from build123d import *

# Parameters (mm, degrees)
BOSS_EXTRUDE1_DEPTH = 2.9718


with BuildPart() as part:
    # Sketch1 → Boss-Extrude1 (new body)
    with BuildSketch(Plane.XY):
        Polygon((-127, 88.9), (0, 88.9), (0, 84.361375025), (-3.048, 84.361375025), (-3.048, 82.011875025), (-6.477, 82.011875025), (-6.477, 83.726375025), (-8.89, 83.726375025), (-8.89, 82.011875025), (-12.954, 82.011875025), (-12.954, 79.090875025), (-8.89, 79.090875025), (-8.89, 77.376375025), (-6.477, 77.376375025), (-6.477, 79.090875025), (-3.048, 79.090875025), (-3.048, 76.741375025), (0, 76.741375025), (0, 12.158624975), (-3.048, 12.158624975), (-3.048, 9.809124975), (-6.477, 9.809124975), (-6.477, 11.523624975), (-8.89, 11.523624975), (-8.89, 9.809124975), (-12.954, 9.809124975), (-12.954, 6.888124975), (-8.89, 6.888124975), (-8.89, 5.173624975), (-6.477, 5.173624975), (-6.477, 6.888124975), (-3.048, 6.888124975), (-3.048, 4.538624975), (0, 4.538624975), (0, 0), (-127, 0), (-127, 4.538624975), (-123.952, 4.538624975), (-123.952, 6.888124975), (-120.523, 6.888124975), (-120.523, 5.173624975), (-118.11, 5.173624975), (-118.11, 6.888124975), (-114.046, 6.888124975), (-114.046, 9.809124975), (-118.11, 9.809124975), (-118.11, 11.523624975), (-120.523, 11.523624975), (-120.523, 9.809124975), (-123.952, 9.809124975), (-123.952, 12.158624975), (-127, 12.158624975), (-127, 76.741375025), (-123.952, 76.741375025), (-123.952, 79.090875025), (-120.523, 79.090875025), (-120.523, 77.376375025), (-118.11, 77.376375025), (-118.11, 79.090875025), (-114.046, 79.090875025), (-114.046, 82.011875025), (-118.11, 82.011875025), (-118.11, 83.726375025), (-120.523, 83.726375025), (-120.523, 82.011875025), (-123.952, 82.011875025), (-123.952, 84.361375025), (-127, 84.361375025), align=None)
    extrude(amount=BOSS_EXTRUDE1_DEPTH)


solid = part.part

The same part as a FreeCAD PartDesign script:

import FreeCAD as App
import Part
import Sketcher
from FreeCAD import Vector
Q = App.Units.Quantity

doc = App.newDocument("Part")
body = doc.addObject("PartDesign::Body", "Body")

# Sketch on XY plane
sketch1 = body.newObject("Sketcher::SketchObject", "Sketch")
sketch1.AttachmentSupport = (doc.getObject("XY_Plane"), [""])
sketch1.MapMode = "FlatFace"
sketch1.addGeometry([
    Part.LineSegment(Vector(0, 88.9, 0), Vector(-127, 88.9, 0)),  # 0
    Part.LineSegment(Vector(-127, 88.9, 0), Vector(-127, 84.361375, 0)),  # 1
    Part.LineSegment(Vector(-127, 84.361375, 0), Vector(-123.952, 84.361375, 0)),  # 2
    Part.LineSegment(Vector(-123.952, 84.361375, 0), Vector(-123.952, 82.011875, 0)),  # 3
    Part.LineSegment(Vector(-123.952, 82.011875, 0), Vector(-120.523, 82.011875, 0)),  # 4
    Part.LineSegment(Vector(-120.523, 82.011875, 0), Vector(-120.523, 83.726375, 0)),  # 5
    Part.LineSegment(Vector(-120.523, 83.726375, 0), Vector(-118.11, 83.726375, 0)),  # 6
    Part.LineSegment(Vector(-118.11, 83.726375, 0), Vector(-118.11, 82.011875, 0)),  # 7
    Part.LineSegment(Vector(-118.11, 82.011875, 0), Vector(-114.046, 82.011875, 0)),  # 8
    Part.LineSegment(Vector(-114.046, 82.011875, 0), Vector(-114.046, 79.090875, 0)),  # 9
    Part.LineSegment(Vector(-114.046, 79.090875, 0), Vector(-118.11, 79.090875, 0)),  # 10
    Part.LineSegment(Vector(-118.11, 79.090875, 0), Vector(-118.11, 77.376375, 0)),  # 11
    Part.LineSegment(Vector(-118.11, 77.376375, 0), Vector(-120.523, 77.376375, 0)),  # 12
    Part.LineSegment(Vector(-120.523, 77.376375, 0), Vector(-120.523, 79.090875, 0)),  # 13
    Part.LineSegment(Vector(-120.523, 79.090875, 0), Vector(-123.952, 79.090875, 0)),  # 14
    Part.LineSegment(Vector(-123.952, 79.090875, 0), Vector(-123.952, 76.741375, 0)),  # 15
    Part.LineSegment(Vector(-123.952, 76.741375, 0), Vector(-127, 76.741375, 0)),  # 16
    Part.LineSegment(Vector(-127, 76.741375, 0), Vector(-127, 12.158625, 0)),  # 17
    Part.LineSegment(Vector(-127, 12.158625, 0), Vector(-123.952, 12.158625, 0)),  # 18
    Part.LineSegment(Vector(-123.952, 12.158625, 0), Vector(-123.952, 9.809125, 0)),  # 19
    Part.LineSegment(Vector(-123.952, 9.809125, 0), Vector(-120.523, 9.809125, 0)),  # 20
    Part.LineSegment(Vector(-120.523, 9.809125, 0), Vector(-120.523, 11.523625, 0)),  # 21
    Part.LineSegment(Vector(-120.523, 11.523625, 0), Vector(-118.11, 11.523625, 0)),  # 22
    Part.LineSegment(Vector(-118.11, 11.523625, 0), Vector(-118.11, 9.809125, 0)),  # 23
    Part.LineSegment(Vector(-118.11, 9.809125, 0), Vector(-114.046, 9.809125, 0)),  # 24
    Part.LineSegment(Vector(-114.046, 9.809125, 0), Vector(-114.046, 6.888125, 0)),  # 25
    Part.LineSegment(Vector(-114.046, 6.888125, 0), Vector(-118.11, 6.888125, 0)),  # 26
    Part.LineSegment(Vector(-118.11, 6.888125, 0), Vector(-118.11, 5.173625, 0)),  # 27
    Part.LineSegment(Vector(-118.11, 5.173625, 0), Vector(-120.523, 5.173625, 0)),  # 28
    Part.LineSegment(Vector(-120.523, 5.173625, 0), Vector(-120.523, 6.888125, 0)),  # 29
    Part.LineSegment(Vector(-120.523, 6.888125, 0), Vector(-123.952, 6.888125, 0)),  # 30
    Part.LineSegment(Vector(-123.952, 6.888125, 0), Vector(-123.952, 4.538625, 0)),  # 31
    Part.LineSegment(Vector(-123.952, 4.538625, 0), Vector(-127, 4.538625, 0)),  # 32
    Part.LineSegment(Vector(-127, 4.538625, 0), Vector(-127, 0, 0)),  # 33
    Part.LineSegment(Vector(-127, 0, 0), Vector(0, 0, 0)),  # 34
    Part.LineSegment(Vector(0, 0, 0), Vector(0, 4.538625, 0)),  # 35
    Part.LineSegment(Vector(0, 4.538625, 0), Vector(-3.048, 4.538625, 0)),  # 36
    Part.LineSegment(Vector(-3.048, 4.538625, 0), Vector(-3.048, 6.888125, 0)),  # 37
    Part.LineSegment(Vector(-3.048, 6.888125, 0), Vector(-6.477, 6.888125, 0)),  # 38
    Part.LineSegment(Vector(-6.477, 6.888125, 0), Vector(-6.477, 5.173625, 0)),  # 39
    Part.LineSegment(Vector(-6.477, 5.173625, 0), Vector(-8.89, 5.173625, 0)),  # 40
    Part.LineSegment(Vector(-8.89, 5.173625, 0), Vector(-8.89, 6.888125, 0)),  # 41
    Part.LineSegment(Vector(-8.89, 6.888125, 0), Vector(-12.954, 6.888125, 0)),  # 42
    Part.LineSegment(Vector(-12.954, 6.888125, 0), Vector(-12.954, 9.809125, 0)),  # 43
    Part.LineSegment(Vector(-12.954, 9.809125, 0), Vector(-8.89, 9.809125, 0)),  # 44
    Part.LineSegment(Vector(-8.89, 9.809125, 0), Vector(-8.89, 11.523625, 0)),  # 45
    Part.LineSegment(Vector(-8.89, 11.523625, 0), Vector(-6.477, 11.523625, 0)),  # 46
    Part.LineSegment(Vector(-6.477, 11.523625, 0), Vector(-6.477, 9.809125, 0)),  # 47
    Part.LineSegment(Vector(-6.477, 9.809125, 0), Vector(-3.048, 9.809125, 0)),  # 48
    Part.LineSegment(Vector(-3.048, 9.809125, 0), Vector(-3.048, 12.158625, 0)),  # 49
    Part.LineSegment(Vector(-3.048, 12.158625, 0), Vector(0, 12.158625, 0)),  # 50
    Part.LineSegment(Vector(0, 12.158625, 0), Vector(0, 76.741375, 0)),  # 51
    Part.LineSegment(Vector(0, 76.741375, 0), Vector(-3.048, 76.741375, 0)),  # 52
    Part.LineSegment(Vector(-3.048, 76.741375, 0), Vector(-3.048, 79.090875, 0)),  # 53
    Part.LineSegment(Vector(-3.048, 79.090875, 0), Vector(-6.477, 79.090875, 0)),  # 54
    Part.LineSegment(Vector(-6.477, 79.090875, 0), Vector(-6.477, 77.376375, 0)),  # 55
    Part.LineSegment(Vector(-6.477, 77.376375, 0), Vector(-8.89, 77.376375, 0)),  # 56
    Part.LineSegment(Vector(-8.89, 77.376375, 0), Vector(-8.89, 79.090875, 0)),  # 57
    Part.LineSegment(Vector(-8.89, 79.090875, 0), Vector(-12.954, 79.090875, 0)),  # 58
    Part.LineSegment(Vector(-12.954, 79.090875, 0), Vector(-12.954, 82.011875, 0)),  # 59
    Part.LineSegment(Vector(-12.954, 82.011875, 0), Vector(-8.89, 82.011875, 0)),  # 60
    Part.LineSegment(Vector(-8.89, 82.011875, 0), Vector(-8.89, 83.726375, 0)),  # 61
    Part.LineSegment(Vector(-8.89, 83.726375, 0), Vector(-6.477, 83.726375, 0)),  # 62
    Part.LineSegment(Vector(-6.477, 83.726375, 0), Vector(-6.477, 82.011875, 0)),  # 63
    Part.LineSegment(Vector(-6.477, 82.011875, 0), Vector(-3.048, 82.011875, 0)),  # 64
    Part.LineSegment(Vector(-3.048, 82.011875, 0), Vector(-3.048, 84.361375, 0)),  # 65
    Part.LineSegment(Vector(-3.048, 84.361375, 0), Vector(0, 84.361375, 0)),  # 66
    Part.LineSegment(Vector(0, 84.361375, 0), Vector(0, 88.9, 0)),  # 67
], False)
sketch1.addConstraint([
    Sketcher.Constraint("Coincident", 0, 2, 1, 1),
    Sketcher.Constraint("Coincident", 1, 2, 2, 1),
    Sketcher.Constraint("Coincident", 2, 2, 3, 1),
    Sketcher.Constraint("Coincident", 3, 2, 4, 1),
    Sketcher.Constraint("Coincident", 4, 2, 5, 1),
    Sketcher.Constraint("Coincident", 5, 2, 6, 1),
    Sketcher.Constraint("Coincident", 6, 2, 7, 1),
    Sketcher.Constraint("Coincident", 7, 2, 8, 1),
    Sketcher.Constraint("Coincident", 8, 2, 9, 1),
    Sketcher.Constraint("Coincident", 9, 2, 10, 1),
    Sketcher.Constraint("Coincident", 10, 2, 11, 1),
    Sketcher.Constraint("Coincident", 11, 2, 12, 1),
    Sketcher.Constraint("Coincident", 12, 2, 13, 1),
    Sketcher.Constraint("Coincident", 13, 2, 14, 1),
    Sketcher.Constraint("Coincident", 14, 2, 15, 1),
    Sketcher.Constraint("Coincident", 15, 2, 16, 1),
    Sketcher.Constraint("Coincident", 16, 2, 17, 1),
    Sketcher.Constraint("Coincident", 17, 2, 18, 1),
    Sketcher.Constraint("Coincident", 18, 2, 19, 1),
    Sketcher.Constraint("Coincident", 19, 2, 20, 1),
    Sketcher.Constraint("Coincident", 20, 2, 21, 1),
    Sketcher.Constraint("Coincident", 21, 2, 22, 1),
    Sketcher.Constraint("Coincident", 22, 2, 23, 1),
    Sketcher.Constraint("Coincident", 23, 2, 24, 1),
    Sketcher.Constraint("Coincident", 24, 2, 25, 1),
    Sketcher.Constraint("Coincident", 25, 2, 26, 1),
    Sketcher.Constraint("Coincident", 26, 2, 27, 1),
    Sketcher.Constraint("Coincident", 27, 2, 28, 1),
    Sketcher.Constraint("Coincident", 28, 2, 29, 1),
    Sketcher.Constraint("Coincident", 29, 2, 30, 1),
    Sketcher.Constraint("Coincident", 30, 2, 31, 1),
    Sketcher.Constraint("Coincident", 31, 2, 32, 1),
    Sketcher.Constraint("Coincident", 32, 2, 33, 1),
    Sketcher.Constraint("Coincident", 33, 2, 34, 1),
    Sketcher.Constraint("Coincident", 34, 2, 35, 1),
    Sketcher.Constraint("Coincident", 35, 2, 36, 1),
    Sketcher.Constraint("Coincident", 36, 2, 37, 1),
    Sketcher.Constraint("Coincident", 37, 2, 38, 1),
    Sketcher.Constraint("Coincident", 38, 2, 39, 1),
    Sketcher.Constraint("Coincident", 39, 2, 40, 1),
    Sketcher.Constraint("Coincident", 40, 2, 41, 1),
    Sketcher.Constraint("Coincident", 41, 2, 42, 1),
    Sketcher.Constraint("Coincident", 42, 2, 43, 1),
    Sketcher.Constraint("Coincident", 43, 2, 44, 1),
    Sketcher.Constraint("Coincident", 44, 2, 45, 1),
    Sketcher.Constraint("Coincident", 45, 2, 46, 1),
    Sketcher.Constraint("Coincident", 46, 2, 47, 1),
    Sketcher.Constraint("Coincident", 47, 2, 48, 1),
    Sketcher.Constraint("Coincident", 48, 2, 49, 1),
    Sketcher.Constraint("Coincident", 49, 2, 50, 1),
    Sketcher.Constraint("Coincident", 50, 2, 51, 1),
    Sketcher.Constraint("Coincident", 51, 2, 52, 1),
    Sketcher.Constraint("Coincident", 52, 2, 53, 1),
    Sketcher.Constraint("Coincident", 53, 2, 54, 1),
    Sketcher.Constraint("Coincident", 54, 2, 55, 1),
    Sketcher.Constraint("Coincident", 55, 2, 56, 1),
    Sketcher.Constraint("Coincident", 56, 2, 57, 1),
    Sketcher.Constraint("Coincident", 57, 2, 58, 1),
    Sketcher.Constraint("Coincident", 58, 2, 59, 1),
    Sketcher.Constraint("Coincident", 59, 2, 60, 1),
    Sketcher.Constraint("Coincident", 60, 2, 61, 1),
    Sketcher.Constraint("Coincident", 61, 2, 62, 1),
    Sketcher.Constraint("Coincident", 62, 2, 63, 1),
    Sketcher.Constraint("Coincident", 63, 2, 64, 1),
    Sketcher.Constraint("Coincident", 64, 2, 65, 1),
    Sketcher.Constraint("Coincident", 65, 2, 66, 1),
    Sketcher.Constraint("Coincident", 66, 2, 67, 1),
    Sketcher.Constraint("Coincident", 67, 2, 0, 1),
    Sketcher.Constraint("Horizontal", 0),
    Sketcher.Constraint("Vertical", 1),
    Sketcher.Constraint("Horizontal", 2),
    Sketcher.Constraint("Vertical", 3),
    Sketcher.Constraint("Horizontal", 4),
    Sketcher.Constraint("Vertical", 5),
    Sketcher.Constraint("Horizontal", 6),
    Sketcher.Constraint("Vertical", 7),
    Sketcher.Constraint("Horizontal", 8),
    Sketcher.Constraint("Vertical", 9),
    Sketcher.Constraint("Horizontal", 10),
    Sketcher.Constraint("Vertical", 11),
    Sketcher.Constraint("Horizontal", 12),
    Sketcher.Constraint("Vertical", 13),
    Sketcher.Constraint("Horizontal", 14),
    Sketcher.Constraint("Vertical", 15),
    Sketcher.Constraint("Horizontal", 16),
    Sketcher.Constraint("Vertical", 17),
    Sketcher.Constraint("Horizontal", 18),
    Sketcher.Constraint("Vertical", 19),
    Sketcher.Constraint("Horizontal", 20),
    Sketcher.Constraint("Vertical", 21),
    Sketcher.Constraint("Horizontal", 22),
    Sketcher.Constraint("Vertical", 23),
    Sketcher.Constraint("Horizontal", 24),
    Sketcher.Constraint("Vertical", 25),
    Sketcher.Constraint("Horizontal", 26),
    Sketcher.Constraint("Vertical", 27),
    Sketcher.Constraint("Horizontal", 28),
    Sketcher.Constraint("Vertical", 29),
    Sketcher.Constraint("Horizontal", 30),
    Sketcher.Constraint("Vertical", 31),
    Sketcher.Constraint("Horizontal", 32),
    Sketcher.Constraint("Vertical", 33),
    Sketcher.Constraint("Horizontal", 34),
    Sketcher.Constraint("Vertical", 35),
    Sketcher.Constraint("Horizontal", 36),
    Sketcher.Constraint("Vertical", 37),
    Sketcher.Constraint("Horizontal", 38),
    Sketcher.Constraint("Vertical", 39),
    Sketcher.Constraint("Horizontal", 40),
    Sketcher.Constraint("Vertical", 41),
    Sketcher.Constraint("Horizontal", 42),
    Sketcher.Constraint("Vertical", 43),
    Sketcher.Constraint("Horizontal", 44),
    Sketcher.Constraint("Vertical", 45),
    Sketcher.Constraint("Horizontal", 46),
    Sketcher.Constraint("Vertical", 47),
    Sketcher.Constraint("Horizontal", 48),
    Sketcher.Constraint("Vertical", 49),
    Sketcher.Constraint("Horizontal", 50),
    Sketcher.Constraint("Vertical", 51),
    Sketcher.Constraint("Horizontal", 52),
    Sketcher.Constraint("Vertical", 53),
    Sketcher.Constraint("Horizontal", 54),
    Sketcher.Constraint("Vertical", 55),
    Sketcher.Constraint("Horizontal", 56),
    Sketcher.Constraint("Vertical", 57),
    Sketcher.Constraint("Horizontal", 58),
    Sketcher.Constraint("Vertical", 59),
    Sketcher.Constraint("Horizontal", 60),
    Sketcher.Constraint("Vertical", 61),
    Sketcher.Constraint("Horizontal", 62),
    Sketcher.Constraint("Vertical", 63),
    Sketcher.Constraint("Horizontal", 64),
    Sketcher.Constraint("Vertical", 65),
    Sketcher.Constraint("Horizontal", 66),
    Sketcher.Constraint("Vertical", 67),
    Sketcher.Constraint("Coincident", 34, 2, -1, 1),
    Sketcher.Constraint("PointOnObject", 50, 2, -2),
    Sketcher.Constraint("PointOnObject", 66, 2, -2),
    Sketcher.Constraint("Horizontal", 4, 2, 7, 2),
    Sketcher.Constraint("Horizontal", 10, 2, 13, 2),
    Sketcher.Constraint("Horizontal", 20, 2, 23, 2),
    Sketcher.Constraint("Horizontal", 26, 2, 29, 2),
    Sketcher.Constraint("Horizontal", 32, 2, 35, 2),
    Sketcher.Constraint("Horizontal", 30, 2, 37, 2),
    Sketcher.Constraint("Horizontal", 28, 2, 39, 2),
    Sketcher.Constraint("Horizontal", 38, 2, 41, 2),
    Sketcher.Constraint("Horizontal", 24, 2, 43, 2),
    Sketcher.Constraint("Horizontal", 22, 2, 45, 2),
    Sketcher.Constraint("Horizontal", 44, 2, 47, 2),
    Sketcher.Constraint("Horizontal", 18, 2, 49, 2),
    Sketcher.Constraint("Horizontal", 16, 2, 51, 2),
    Sketcher.Constraint("Horizontal", 14, 2, 53, 2),
    Sketcher.Constraint("Horizontal", 12, 2, 55, 2),
    Sketcher.Constraint("Horizontal", 54, 2, 57, 2),
    Sketcher.Constraint("Horizontal", 8, 2, 59, 2),
    Sketcher.Constraint("Horizontal", 6, 2, 61, 2),
    Sketcher.Constraint("Horizontal", 60, 2, 63, 2),
    Sketcher.Constraint("Horizontal", 2, 2, 65, 2),
    Sketcher.Constraint("Vertical", 7, 2, 10, 2),
    Sketcher.Constraint("Vertical", 5, 2, 12, 2),
    Sketcher.Constraint("Vertical", 3, 2, 14, 2),
    Sketcher.Constraint("Vertical", 1, 2, 16, 2),
    Sketcher.Constraint("Vertical", 15, 2, 18, 2),
    Sketcher.Constraint("Vertical", 13, 2, 20, 2),
    Sketcher.Constraint("Vertical", 11, 2, 22, 2),
    Sketcher.Constraint("Vertical", 9, 2, 24, 2),
    Sketcher.Constraint("Vertical", 23, 2, 26, 2),
    Sketcher.Constraint("Vertical", 21, 2, 28, 2),
    Sketcher.Constraint("Vertical", 19, 2, 30, 2),
    Sketcher.Constraint("Vertical", 17, 2, 32, 2),
    Sketcher.Constraint("Vertical", 41, 2, 44, 2),
    Sketcher.Constraint("Vertical", 39, 2, 46, 2),
    Sketcher.Constraint("Vertical", 37, 2, 48, 2),
    Sketcher.Constraint("Vertical", 49, 2, 52, 2),
    Sketcher.Constraint("Vertical", 47, 2, 54, 2),
    Sketcher.Constraint("Vertical", 45, 2, 56, 2),
    Sketcher.Constraint("Vertical", 43, 2, 58, 2),
    Sketcher.Constraint("Vertical", 57, 2, 60, 2),
    Sketcher.Constraint("Vertical", 55, 2, 62, 2),
    Sketcher.Constraint("Vertical", 53, 2, 64, 2),
    Sketcher.Constraint("Equal", 32, 36),
    Sketcher.Constraint("Equal", 30, 38),
    Sketcher.Constraint("Equal", 28, 40),
    Sketcher.Constraint("Equal", 26, 42),
    Sketcher.Constraint("Equal", 7, 11),
    Sketcher.Constraint("Equal", 3, 15),
    Sketcher.Constraint("Equal", 15, 19),
    Sketcher.Constraint("Equal", 13, 21),
    Sketcher.Constraint("Equal", 9, 25),
    Sketcher.Constraint("Equal", 23, 27),
    Sketcher.Constraint("Equal", 19, 31),
    Sketcher.Constraint("Equal", 1, 33),
    Sketcher.Constraint("DistanceX", 0, 2, 0, 1, Q("5 in")),
    Sketcher.Constraint("DistanceX", 2, 1, 2, 2, Q("0.12 in")),
    Sketcher.Constraint("DistanceX", 8, 1, 8, 2, Q("0.16 in")),
    Sketcher.Constraint("DistanceY", -1, 1, 0, 2, Q("3.5 in")),
    Sketcher.Constraint("DistanceX", 4, 1, 4, 2, Q("0.135 in")),
    Sketcher.Constraint("DistanceX", 6, 1, 6, 2, Q("0.095 in")),
    Sketcher.Constraint("DistanceY", 9, 2, 9, 1, Q("0.115 in")),
    Sketcher.Constraint("DistanceY", 3, 2, 3, 1, Q("0.0925 in")),
    Sketcher.Constraint("DistanceY", 5, 1, 5, 2, Q("0.0675 in")),
    Sketcher.Constraint("DistanceY", 17, 2, 17, 1, 64.58275),
])
pad1 = body.newObject("PartDesign::Pad", "Pad")
pad1.Profile = sketch1
pad1.Length = Q("0.117 in")

doc.recompute()
